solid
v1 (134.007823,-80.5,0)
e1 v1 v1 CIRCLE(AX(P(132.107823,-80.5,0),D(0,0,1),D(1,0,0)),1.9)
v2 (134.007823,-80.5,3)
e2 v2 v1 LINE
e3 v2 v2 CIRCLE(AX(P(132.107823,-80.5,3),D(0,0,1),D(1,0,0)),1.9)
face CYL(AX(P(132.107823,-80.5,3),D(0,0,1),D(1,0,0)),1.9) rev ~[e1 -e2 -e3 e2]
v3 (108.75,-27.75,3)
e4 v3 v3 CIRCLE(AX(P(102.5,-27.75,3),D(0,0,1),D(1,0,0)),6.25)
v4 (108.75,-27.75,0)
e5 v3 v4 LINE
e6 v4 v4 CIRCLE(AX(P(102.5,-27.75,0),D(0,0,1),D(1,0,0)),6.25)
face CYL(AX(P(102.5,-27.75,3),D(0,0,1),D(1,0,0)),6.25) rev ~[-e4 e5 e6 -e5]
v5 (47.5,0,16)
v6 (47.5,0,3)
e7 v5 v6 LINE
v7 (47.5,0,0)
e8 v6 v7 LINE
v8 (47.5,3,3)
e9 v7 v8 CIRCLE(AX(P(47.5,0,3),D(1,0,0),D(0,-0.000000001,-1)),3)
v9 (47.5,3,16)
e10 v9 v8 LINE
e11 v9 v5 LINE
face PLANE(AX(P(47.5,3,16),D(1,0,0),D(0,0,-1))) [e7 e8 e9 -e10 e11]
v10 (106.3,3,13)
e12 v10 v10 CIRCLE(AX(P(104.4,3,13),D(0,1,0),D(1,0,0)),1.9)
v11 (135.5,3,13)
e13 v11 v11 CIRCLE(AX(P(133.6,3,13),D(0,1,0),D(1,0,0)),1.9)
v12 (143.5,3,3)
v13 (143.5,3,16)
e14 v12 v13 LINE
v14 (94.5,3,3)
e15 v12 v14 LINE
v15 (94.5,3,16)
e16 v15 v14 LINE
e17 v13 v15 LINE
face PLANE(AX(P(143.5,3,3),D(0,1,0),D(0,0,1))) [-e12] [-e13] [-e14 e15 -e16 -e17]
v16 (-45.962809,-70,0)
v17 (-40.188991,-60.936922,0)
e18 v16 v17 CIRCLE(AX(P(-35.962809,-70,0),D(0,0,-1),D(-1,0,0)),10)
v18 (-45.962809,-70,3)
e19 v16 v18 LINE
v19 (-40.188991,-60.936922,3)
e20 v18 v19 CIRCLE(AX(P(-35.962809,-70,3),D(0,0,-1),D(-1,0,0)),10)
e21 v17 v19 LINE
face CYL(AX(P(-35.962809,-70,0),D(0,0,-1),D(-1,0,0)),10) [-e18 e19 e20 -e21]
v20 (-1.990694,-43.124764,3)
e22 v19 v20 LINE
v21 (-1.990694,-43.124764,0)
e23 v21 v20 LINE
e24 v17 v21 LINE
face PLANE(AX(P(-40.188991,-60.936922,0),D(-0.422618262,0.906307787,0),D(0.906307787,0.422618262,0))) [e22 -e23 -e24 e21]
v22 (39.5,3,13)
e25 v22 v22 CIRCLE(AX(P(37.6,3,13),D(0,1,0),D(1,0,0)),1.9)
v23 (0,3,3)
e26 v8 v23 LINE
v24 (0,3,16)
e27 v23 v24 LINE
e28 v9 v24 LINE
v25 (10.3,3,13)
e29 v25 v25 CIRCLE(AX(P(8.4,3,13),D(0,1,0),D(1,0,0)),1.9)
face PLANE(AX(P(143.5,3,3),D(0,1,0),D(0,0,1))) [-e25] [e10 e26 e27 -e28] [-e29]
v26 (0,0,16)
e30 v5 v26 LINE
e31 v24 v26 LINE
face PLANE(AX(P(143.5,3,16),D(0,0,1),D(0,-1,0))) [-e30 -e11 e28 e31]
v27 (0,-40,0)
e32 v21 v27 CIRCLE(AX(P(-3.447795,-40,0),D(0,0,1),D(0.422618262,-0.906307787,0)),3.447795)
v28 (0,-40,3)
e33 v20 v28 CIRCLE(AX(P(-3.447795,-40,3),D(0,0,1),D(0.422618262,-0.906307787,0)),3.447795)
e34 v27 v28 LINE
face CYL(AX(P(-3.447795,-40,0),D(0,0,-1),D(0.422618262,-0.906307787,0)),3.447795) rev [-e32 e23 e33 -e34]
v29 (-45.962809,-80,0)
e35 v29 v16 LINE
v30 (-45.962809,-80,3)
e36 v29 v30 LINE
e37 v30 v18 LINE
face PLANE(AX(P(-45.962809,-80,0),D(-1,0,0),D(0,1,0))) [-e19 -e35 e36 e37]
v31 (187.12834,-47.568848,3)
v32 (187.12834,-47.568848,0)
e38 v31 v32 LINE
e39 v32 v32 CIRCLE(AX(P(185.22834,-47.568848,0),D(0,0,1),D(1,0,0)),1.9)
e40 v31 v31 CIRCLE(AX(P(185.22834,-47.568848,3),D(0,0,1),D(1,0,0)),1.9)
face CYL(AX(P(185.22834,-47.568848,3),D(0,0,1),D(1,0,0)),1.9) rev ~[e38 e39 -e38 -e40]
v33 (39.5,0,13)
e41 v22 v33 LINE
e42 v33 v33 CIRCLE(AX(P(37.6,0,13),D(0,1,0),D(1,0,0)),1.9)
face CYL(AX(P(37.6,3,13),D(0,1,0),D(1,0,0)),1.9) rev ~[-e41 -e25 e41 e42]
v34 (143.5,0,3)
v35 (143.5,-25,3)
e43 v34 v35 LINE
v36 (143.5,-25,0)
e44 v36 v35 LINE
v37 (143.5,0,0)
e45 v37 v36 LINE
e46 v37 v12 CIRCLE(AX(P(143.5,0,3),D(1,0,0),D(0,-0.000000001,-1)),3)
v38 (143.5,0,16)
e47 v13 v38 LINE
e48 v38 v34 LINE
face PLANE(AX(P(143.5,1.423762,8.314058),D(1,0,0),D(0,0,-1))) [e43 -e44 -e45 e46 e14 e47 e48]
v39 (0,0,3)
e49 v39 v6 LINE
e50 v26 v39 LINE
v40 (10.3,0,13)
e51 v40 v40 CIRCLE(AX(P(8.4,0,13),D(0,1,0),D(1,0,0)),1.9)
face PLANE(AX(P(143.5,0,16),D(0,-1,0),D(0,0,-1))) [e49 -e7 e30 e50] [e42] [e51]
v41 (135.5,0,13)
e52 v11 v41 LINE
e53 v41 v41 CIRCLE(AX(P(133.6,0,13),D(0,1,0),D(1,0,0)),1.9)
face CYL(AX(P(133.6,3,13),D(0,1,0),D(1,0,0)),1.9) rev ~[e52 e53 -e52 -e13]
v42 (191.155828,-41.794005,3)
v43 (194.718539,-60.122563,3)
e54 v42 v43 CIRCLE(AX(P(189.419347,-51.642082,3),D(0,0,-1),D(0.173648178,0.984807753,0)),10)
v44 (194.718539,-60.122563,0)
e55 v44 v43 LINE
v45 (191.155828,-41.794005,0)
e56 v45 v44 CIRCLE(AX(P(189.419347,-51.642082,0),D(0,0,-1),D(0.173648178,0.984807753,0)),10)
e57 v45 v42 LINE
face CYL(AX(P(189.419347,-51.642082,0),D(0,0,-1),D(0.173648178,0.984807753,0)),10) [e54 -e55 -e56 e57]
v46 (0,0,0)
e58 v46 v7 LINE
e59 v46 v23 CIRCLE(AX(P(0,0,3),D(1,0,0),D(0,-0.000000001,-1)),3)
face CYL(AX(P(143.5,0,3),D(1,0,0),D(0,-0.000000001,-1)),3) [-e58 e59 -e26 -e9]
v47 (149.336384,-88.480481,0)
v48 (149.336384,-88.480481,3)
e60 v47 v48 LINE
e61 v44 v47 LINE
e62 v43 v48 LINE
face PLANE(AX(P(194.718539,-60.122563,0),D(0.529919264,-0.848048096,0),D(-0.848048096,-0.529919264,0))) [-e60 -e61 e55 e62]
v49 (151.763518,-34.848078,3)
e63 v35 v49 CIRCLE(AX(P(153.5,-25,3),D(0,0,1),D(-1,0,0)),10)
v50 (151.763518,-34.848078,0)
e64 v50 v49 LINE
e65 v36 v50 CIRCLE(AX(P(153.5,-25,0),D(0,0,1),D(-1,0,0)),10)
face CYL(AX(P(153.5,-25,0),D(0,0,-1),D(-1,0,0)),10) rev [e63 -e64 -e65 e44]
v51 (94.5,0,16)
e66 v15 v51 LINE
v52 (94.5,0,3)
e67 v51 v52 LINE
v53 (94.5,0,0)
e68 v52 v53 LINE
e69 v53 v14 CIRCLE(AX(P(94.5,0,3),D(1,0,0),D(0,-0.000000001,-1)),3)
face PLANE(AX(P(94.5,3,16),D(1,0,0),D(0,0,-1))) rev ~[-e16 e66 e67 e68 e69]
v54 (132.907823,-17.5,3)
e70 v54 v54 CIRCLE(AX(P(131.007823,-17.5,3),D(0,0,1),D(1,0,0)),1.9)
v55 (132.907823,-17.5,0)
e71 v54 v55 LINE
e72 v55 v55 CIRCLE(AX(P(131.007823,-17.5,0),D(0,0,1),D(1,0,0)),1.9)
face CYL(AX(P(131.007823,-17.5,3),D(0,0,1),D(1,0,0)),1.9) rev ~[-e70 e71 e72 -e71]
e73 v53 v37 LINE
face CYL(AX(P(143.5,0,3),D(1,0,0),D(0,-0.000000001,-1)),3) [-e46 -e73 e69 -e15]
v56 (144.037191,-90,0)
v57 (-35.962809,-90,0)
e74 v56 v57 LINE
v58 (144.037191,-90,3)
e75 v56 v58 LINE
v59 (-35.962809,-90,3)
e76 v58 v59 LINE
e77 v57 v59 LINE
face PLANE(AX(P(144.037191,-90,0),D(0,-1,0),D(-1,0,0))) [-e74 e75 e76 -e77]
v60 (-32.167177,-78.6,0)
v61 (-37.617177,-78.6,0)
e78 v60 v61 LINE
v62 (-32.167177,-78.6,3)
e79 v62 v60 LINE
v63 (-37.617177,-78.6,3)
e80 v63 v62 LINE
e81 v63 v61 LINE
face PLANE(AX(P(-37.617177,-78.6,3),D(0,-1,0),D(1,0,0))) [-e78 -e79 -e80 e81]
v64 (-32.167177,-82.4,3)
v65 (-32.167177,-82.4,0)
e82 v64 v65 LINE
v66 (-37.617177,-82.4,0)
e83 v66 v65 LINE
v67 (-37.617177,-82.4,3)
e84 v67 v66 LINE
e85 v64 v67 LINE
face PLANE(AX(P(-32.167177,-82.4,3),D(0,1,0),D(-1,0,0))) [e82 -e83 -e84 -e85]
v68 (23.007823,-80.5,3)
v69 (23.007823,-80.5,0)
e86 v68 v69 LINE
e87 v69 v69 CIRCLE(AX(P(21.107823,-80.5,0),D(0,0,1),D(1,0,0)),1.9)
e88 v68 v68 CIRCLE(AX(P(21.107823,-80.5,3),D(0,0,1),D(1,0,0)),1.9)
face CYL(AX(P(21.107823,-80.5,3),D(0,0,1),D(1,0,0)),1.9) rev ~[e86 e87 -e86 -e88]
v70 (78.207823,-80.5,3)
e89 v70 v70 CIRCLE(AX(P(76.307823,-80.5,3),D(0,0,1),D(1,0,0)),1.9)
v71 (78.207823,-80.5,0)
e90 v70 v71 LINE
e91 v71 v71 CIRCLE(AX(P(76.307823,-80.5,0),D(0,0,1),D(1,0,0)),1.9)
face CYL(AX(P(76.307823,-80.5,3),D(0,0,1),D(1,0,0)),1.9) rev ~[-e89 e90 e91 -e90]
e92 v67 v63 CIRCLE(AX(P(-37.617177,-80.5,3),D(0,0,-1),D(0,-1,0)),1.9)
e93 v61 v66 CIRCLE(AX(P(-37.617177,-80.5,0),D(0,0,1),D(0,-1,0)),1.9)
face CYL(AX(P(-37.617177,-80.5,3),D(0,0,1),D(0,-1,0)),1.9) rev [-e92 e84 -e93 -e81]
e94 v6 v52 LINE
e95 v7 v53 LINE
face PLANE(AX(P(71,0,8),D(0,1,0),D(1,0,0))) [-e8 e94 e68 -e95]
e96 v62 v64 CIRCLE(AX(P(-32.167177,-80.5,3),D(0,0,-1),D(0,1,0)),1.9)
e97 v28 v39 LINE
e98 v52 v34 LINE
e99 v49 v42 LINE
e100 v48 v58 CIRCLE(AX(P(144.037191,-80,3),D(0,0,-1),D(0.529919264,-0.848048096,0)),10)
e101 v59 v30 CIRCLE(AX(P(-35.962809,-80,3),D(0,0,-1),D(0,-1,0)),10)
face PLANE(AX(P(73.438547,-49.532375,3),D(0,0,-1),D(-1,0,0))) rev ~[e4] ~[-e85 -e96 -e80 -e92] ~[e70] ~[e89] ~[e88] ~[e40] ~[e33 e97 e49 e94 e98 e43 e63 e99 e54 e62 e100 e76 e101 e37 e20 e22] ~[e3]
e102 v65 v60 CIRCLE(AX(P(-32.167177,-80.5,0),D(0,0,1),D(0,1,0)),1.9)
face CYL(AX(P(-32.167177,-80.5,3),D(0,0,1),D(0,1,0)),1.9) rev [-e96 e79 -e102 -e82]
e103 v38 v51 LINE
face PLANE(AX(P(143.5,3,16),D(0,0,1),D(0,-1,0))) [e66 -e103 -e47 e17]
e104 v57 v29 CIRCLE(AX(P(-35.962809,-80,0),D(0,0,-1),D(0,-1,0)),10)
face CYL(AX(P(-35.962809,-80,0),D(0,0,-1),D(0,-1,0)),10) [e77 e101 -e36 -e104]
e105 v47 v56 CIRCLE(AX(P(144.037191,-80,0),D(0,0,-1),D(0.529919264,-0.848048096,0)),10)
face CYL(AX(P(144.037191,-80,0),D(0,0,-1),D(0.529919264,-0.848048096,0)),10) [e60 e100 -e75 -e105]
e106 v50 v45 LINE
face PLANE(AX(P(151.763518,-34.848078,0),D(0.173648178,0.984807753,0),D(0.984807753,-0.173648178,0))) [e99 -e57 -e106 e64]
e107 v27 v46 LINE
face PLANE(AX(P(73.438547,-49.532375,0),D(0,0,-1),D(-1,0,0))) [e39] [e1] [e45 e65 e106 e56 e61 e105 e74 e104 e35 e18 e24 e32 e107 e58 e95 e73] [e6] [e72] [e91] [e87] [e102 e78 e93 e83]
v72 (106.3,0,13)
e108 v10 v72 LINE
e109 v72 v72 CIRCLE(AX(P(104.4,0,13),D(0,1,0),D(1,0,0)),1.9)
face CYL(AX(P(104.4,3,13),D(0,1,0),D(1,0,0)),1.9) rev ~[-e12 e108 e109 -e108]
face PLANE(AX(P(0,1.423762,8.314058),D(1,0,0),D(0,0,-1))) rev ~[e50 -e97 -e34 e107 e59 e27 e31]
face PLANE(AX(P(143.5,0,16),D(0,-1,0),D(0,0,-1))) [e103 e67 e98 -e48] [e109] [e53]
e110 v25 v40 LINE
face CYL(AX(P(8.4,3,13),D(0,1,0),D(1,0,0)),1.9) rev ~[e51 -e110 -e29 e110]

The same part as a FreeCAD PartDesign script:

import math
import FreeCAD as App
import Part
import Sketcher
Q = App.Units.Quantity


def add_polygon(sketch, points):
    """Adds a closed chain of lines whose ends are joined by coincident constraints."""
    first, n = sketch.GeometryCount, len(points)
    for a, b in zip(points, points[1:] + points[:1]):
        sketch.addGeometry(Part.LineSegment(App.Vector(*a, 0), App.Vector(*b, 0)), False)
    for i in range(n):
        sketch.addConstraint(Sketcher.Constraint("Coincident", first + i, 2, first + (i + 1) % n, 1))

doc = App.newDocument("Part")
params = doc.addObject("Spreadsheet::Sheet", "Params")
for row, (alias, value) in enumerate([
    ("sketch1_radius", "10 mm"),
    ("sketch1_width", "180 mm"),
    ("sketch1_height", "40 mm"),
    ("sketch1_height2", "10 mm"),
    ("sketch1_height3", "25 mm"),
    ("pad1_length", "3 mm"),
    ("sketch2_diameter", "3.8 mm"),
    ("sketch2_diameter2", "12.5 mm"),
    ("sketch2_width", "5.45 mm"),
    ("sketch3_radius", "3 mm"),
    ("sketch3_height", "13 mm"),
    ("pad2_length", "143.5 mm"),
    ("sketch4_width", "47 mm"),
    ("sketch4_height", "16 mm"),
    ("pocket2_length", "3 mm"),
    ("sketch5_diameter", "3.8 mm"),
], start=1):
    params.set(f"A{row}", alias)
    params.set(f"B{row}", "=" + value)
    params.setAlias(f"B{row}", alias)

body = doc.addObject("PartDesign::Body", "Body")

# Sketch on XY plane
sketch1 = body.newObject("Sketcher::SketchObject", "Sketch")
sketch1.AttachmentSupport = (doc.getObject("XY_Plane"), [""])
sketch1.MapMode = "FlatFace"
sketch1.addGeometry([
    Part.LineSegment(App.Vector(143.5, 0, 0), App.Vector(0, 0, 0)),  # 0
    Part.LineSegment(App.Vector(0, 0, 0), App.Vector(0, -40, 0)),  # 1
    Part.ArcOfCircle(Part.Circle(App.Vector(-3.447795, -40, 0), App.Vector(0, 0, 1), 3.447795), math.radians(-65), math.radians(0)),  # 2
    Part.LineSegment(App.Vector(-1.990694, -43.124764, 0), App.Vector(-40.188991, -60.936922, 0)),  # 3
    Part.ArcOfCircle(Part.Circle(App.Vector(-35.962809, -70, 0), App.Vector(0, 0, 1), 10), math.radians(115), math.radians(180)),  # 4
    Part.LineSegment(App.Vector(-45.962809, -70, 0), App.Vector(-45.962809, -80, 0)),  # 5
    Part.ArcOfCircle(Part.Circle(App.Vector(-35.962809, -80, 0), App.Vector(0, 0, 1), 10), math.radians(180), math.radians(270)),  # 6
    Part.LineSegment(App.Vector(-35.962809, -90, 0), App.Vector(144.037191, -90, 0)),  # 7
    Part.ArcOfCircle(Part.Circle(App.Vector(144.037191, -80, 0), App.Vector(0, 0, 1), 10), math.radians(-90), math.radians(-58)),  # 8
    Part.LineSegment(App.Vector(149.336384, -88.480481, 0), App.Vector(194.718539, -60.122563, 0)),  # 9
    Part.ArcOfCircle(Part.Circle(App.Vector(189.419347, -51.642082, 0), App.Vector(0, 0, 1), 10), math.radians(-58), math.radians(80)),  # 10
    Part.LineSegment(App.Vector(191.155828, -41.794005, 0), App.Vector(151.763518, -34.848078, 0)),  # 11
    Part.ArcOfCircle(Part.Circle(App.Vector(153.5, -25, 0), App.Vector(0, 0, 1), 10), math.radians(180), math.radians(260)),  # 12
    Part.LineSegment(App.Vector(143.5, -25, 0), App.Vector(143.5, 0, 0)),  # 13
], False)
sketch1.addConstraint([
    Sketcher.Constraint("Coincident", 0, 2, 1, 1),
    Sketcher.Constraint("Tangent", 1, 2, 2, 2),
    Sketcher.Constraint("Tangent", 2, 1, 3, 1),
    Sketcher.Constraint("Tangent", 3, 2, 4, 1),
    Sketcher.Constraint("Tangent", 4, 2, 5, 1),
    Sketcher.Constraint("Tangent", 5, 2, 6, 1),
    Sketcher.Constraint("Tangent", 6, 2, 7, 1),
    Sketcher.Constraint("Tangent", 7, 2, 8, 1),
    Sketcher.Constraint("Tangent", 8, 2, 9, 1),
    Sketcher.Constraint("Tangent", 9, 2, 10, 1),
    Sketcher.Constraint("Tangent", 10, 2, 11, 1),
    Sketcher.Constraint("Tangent", 11, 2, 12, 2),
    Sketcher.Constraint("Tangent", 12, 1, 13, 1),
    Sketcher.Constraint("Coincident", 13, 2, 0, 1),
    Sketcher.Constraint("Horizontal", 0),
    Sketcher.Constraint("Vertical", 1),
    Sketcher.Constraint("Vertical", 5),
    Sketcher.Constraint("Horizontal", 7),
    Sketcher.Constraint("Vertical", 13),
    Sketcher.Constraint("Coincident", 0, 2, -1, 1),
    Sketcher.Constraint("Equal", 4, 6),
    Sketcher.Constraint("Equal", 6, 8),
    Sketcher.Constraint("Equal", 8, 10),
    Sketcher.Constraint("Equal", 10, 12),
    Sketcher.Constraint("Radius", 4, 10.0),
    Sketcher.Constraint("DistanceX", 7, 1, 7, 2, 180.0),
    Sketcher.Constraint("DistanceY", 1, 2, 1, 1, 40.0),
    Sketcher.Constraint("DistanceY", 5, 2, 5, 1, 10.0),
    Sketcher.Constraint("DistanceY", 13, 1, 13, 2, 25.0),
    Sketcher.Constraint("Angle", 3, Q("-155 deg")),
    Sketcher.Constraint("Angle", 9, Q("32 deg")),
    Sketcher.Constraint("Angle", 11, Q("170 deg")),
    Sketcher.Constraint("Distance", 11, 40.0),
    Sketcher.Constraint("DistanceX", 0, 2, 0, 1, 143.5),
    Sketcher.Constraint("DistanceY", 4, 3, -1, 1, 70.0),
])
sketch1.setExpression("Constraints[24]", "Params.sketch1_radius")
sketch1.setExpression("Constraints[25]", "Params.sketch1_width")
sketch1.setExpression("Constraints[26]", "Params.sketch1_height")
sketch1.setExpression("Constraints[27]", "Params.sketch1_height2")
sketch1.setExpression("Constraints[28]", "Params.sketch1_height3")
pad1 = body.newObject("PartDesign::Pad", "Pad")
pad1.Profile = sketch1
pad1.setExpression("Length", "Params.pad1_length")

# Sketch on XY plane
sketch2 = body.newObject("Sketcher::SketchObject", "Sketch001")
sketch2.AttachmentSupport = (doc.getObject("XY_Plane"), [""])
sketch2.MapMode = "FlatFace"
sketch2.AttachmentOffset = App.Placement(App.Vector(0, 0, 3), App.Rotation())
sketch2.addGeometry([
    Part.Circle(App.Vector(185.22834, -47.568848, 0), App.Vector(0, 0, 1), 1.9),  # 0
    Part.Circle(App.Vector(132.107823, -80.5, 0), App.Vector(0, 0, 1), 1.9),  # 1
    Part.Circle(App.Vector(76.307823, -80.5, 0), App.Vector(0, 0, 1), 1.9),  # 2
    Part.Circle(App.Vector(21.107823, -80.5, 0), App.Vector(0, 0, 1), 1.9),  # 3
    Part.Circle(App.Vector(102.5, -27.75, 0), App.Vector(0, 0, 1), 6.25),  # 4
    Part.Circle(App.Vector(131.007823, -17.5, 0), App.Vector(0, 0, 1), 1.9),  # 5
    Part.LineSegment(App.Vector(-37.617177, -82.4, 0), App.Vector(-32.167177, -82.4, 0)),  # 6
    Part.ArcOfCircle(Part.Circle(App.Vector(-32.167177, -80.5, 0), App.Vector(0, 0, 1), 1.9), math.radians(-90), math.radians(90)),  # 7
    Part.LineSegment(App.Vector(-32.167177, -78.6, 0), App.Vector(-37.617177, -78.6, 0)),  # 8
    Part.ArcOfCircle(Part.Circle(App.Vector(-37.617177, -80.5, 0), App.Vector(0, 0, 1), 1.9), math.radians(90), math.radians(270)),  # 9
], False)
sketch2.addConstraint([
    Sketcher.Constraint("Tangent", 6, 2, 7, 1),
    Sketcher.Constraint("Tangent", 7, 2, 8, 1),
    Sketcher.Constraint("Tangent", 8, 2, 9, 1),
    Sketcher.Constraint("Tangent", 9, 2, 6, 1),
    Sketcher.Constraint("Horizontal", 6),
    Sketcher.Constraint("Horizontal", 8),
    Sketcher.Constraint("Equal", 0, 1),
    Sketcher.Constraint("Equal", 1, 2),
    Sketcher.Constraint("Equal", 2, 3),
    Sketcher.Constraint("Equal", 3, 5),
    Sketcher.Constraint("Equal", 5, 7),
    Sketcher.Constraint("Horizontal", 1, 3, 2, 3),
    Sketcher.Constraint("Horizontal", 2, 3, 3, 3),
    Sketcher.Constraint("Horizontal", 3, 3, 7, 3),
    Sketcher.Constraint("Diameter", 0, 3.8),
    Sketcher.Constraint("Diameter", 4, 12.5),
    Sketcher.Constraint("DistanceX", 3, 3, 1, 3, 111.0),
    Sketcher.Constraint("DistanceY", 1, 3, 5, 3, 63.0),
    Sketcher.Constraint("DistanceX", 6, 1, 6, 2, 5.45),
    Sketcher.Constraint("DistanceY", 1, 3, -1, 1, 80.5),
    Sketcher.Constraint("DistanceX", -1, 1, 4, 3, 102.5),
    Sketcher.Constraint("DistanceX", 2, 3, 1, 3, 55.8),
    Sketcher.Constraint("DistanceX", 5, 3, 1, 3, 1.1),
    Sketcher.Constraint("DistanceY", 4, 3, -1, 1, 27.75),
    Sketcher.Constraint("DistanceX", 7, 3, 3, 3, 53.275),
    Sketcher.Constraint("DistanceX", -1, 1, 0, 3, 185.22834),
    Sketcher.Constraint("DistanceY", 0, 3, -1, 1, 47.568848),
    Sketcher.Constraint("DistanceX", -1, 1, 1, 3, 132.107823),
])
sketch2.setExpression("Constraints[14]", "Params.sketch2_diameter")
sketch2.setExpression("Constraints[15]", "Params.sketch2_diameter2")
sketch2.setExpression("Constraints[18]", "Params.sketch2_width")
pocket1 = body.newObject("PartDesign::Pocket", "Pocket")
pocket1.Profile = sketch2
pocket1.Type = "ThroughAll"

# Sketch on YZ plane
sketch3 = body.newObject("Sketcher::SketchObject", "Sketch002")
sketch3.AttachmentSupport = (doc.getObject("YZ_Plane"), [""])
sketch3.MapMode = "FlatFace"
sketch3.AttachmentOffset = App.Placement(App.Vector(0, 0, 143.5), App.Rotation())
sketch3.addGeometry([
    Part.ArcOfCircle(Part.Circle(App.Vector(0, 3, 0), App.Vector(0, 0, 1), 3), math.radians(-90), math.radians(0)),
    Part.LineSegment(App.Vector(3, 3, 0), App.Vector(3, 16, 0)),
    Part.LineSegment(App.Vector(3, 16, 0), App.Vector(0, 16, 0)),
    Part.LineSegment(App.Vector(0, 16, 0), App.Vector(0, 0, 0)),
], False)
sketch3.addConstraint([
    Sketcher.Constraint("Tangent", 0, 2, 1, 1),
    Sketcher.Constraint("Coincident", 1, 2, 2, 1),
    Sketcher.Constraint("Coincident", 2, 2, 3, 1),
    Sketcher.Constraint("Coincident", 3, 2, 0, 1),
    Sketcher.Constraint("Vertical", 1),
    Sketcher.Constraint("Horizontal", 2),
    Sketcher.Constraint("Vertical", 3),
    Sketcher.Constraint("Coincident", 3, 2, -1, 1),
    Sketcher.Constraint("PointOnObject", 0, 3, -2),
    Sketcher.Constraint("Radius", 0, 3.0),
    Sketcher.Constraint("DistanceY", 1, 1, 1, 2, 13.0),
])
sketch3.setExpression("Constraints[9]", "Params.sketch3_radius")
sketch3.setExpression("Constraints[10]", "Params.sketch3_height")
pad2 = body.newObject("PartDesign::Pad", "Pad001")
pad2.Profile = sketch3
pad2.setExpression("Length", "Params.pad2_length")
pad2.Reversed = True

# Sketch on XZ plane
sketch4 = body.newObject("Sketcher::SketchObject", "Sketch003")
sketch4.AttachmentSupport = (doc.getObject("XZ_Plane"), [""])
sketch4.MapMode = "FlatFace"
sketch4.AttachmentOffset = App.Placement(App.Vector(0, 0, -3), App.Rotation())
add_polygon(sketch4, [(47.5, 0), (47.5, 16), (94.5, 16), (94.5, 0)])  # lines 0-3
sketch4.addConstraint([
    Sketcher.Constraint("Vertical", 0),
    Sketcher.Constraint("Horizontal", 1),
    Sketcher.Constraint("Vertical", 2),
    Sketcher.Constraint("Horizontal", 3),
    Sketcher.Constraint("PointOnObject", 2, 2, -1),
    Sketcher.Constraint("DistanceX", 1, 1, 1, 2, 47.0),
    Sketcher.Constraint("DistanceY", 0, 1, 0, 2, 16.0),
    Sketcher.Constraint("DistanceX", -1, 1, 0, 2, 47.5),
])
sketch4.setExpression("Constraints[9]", "Params.sketch4_width")
sketch4.setExpression("Constraints[10]", "Params.sketch4_height")
pocket2 = body.newObject("PartDesign::Pocket", "Pocket001")
pocket2.Profile = sketch4
pocket2.setExpression("Length", "Params.pocket2_length")
pocket2.Reversed = True

# Sketch on XZ plane
sketch5 = body.newObject("Sketcher::SketchObject", "Sketch004")
sketch5.AttachmentSupport = (doc.getObject("XZ_Plane"), [""])
sketch5.MapMode = "FlatFace"
sketch5.AttachmentOffset = App.Placement(App.Vector(0, 0, -3), App.Rotation())
sketch5.addGeometry([
    Part.Circle(App.Vector(133.6, 13, 0), App.Vector(0, 0, 1), 1.9),
    Part.Circle(App.Vector(104.4, 13, 0), App.Vector(0, 0, 1), 1.9),
    Part.Circle(App.Vector(37.6, 13, 0), App.Vector(0, 0, 1), 1.9),
    Part.Circle(App.Vector(8.4, 13, 0), App.Vector(0, 0, 1), 1.9),
], False)
sketch5.addConstraint([
    Sketcher.Constraint("Equal", 0, 1),
    Sketcher.Constraint("Equal", 1, 2),
    Sketcher.Constraint("Equal", 2, 3),
    Sketcher.Constraint("Horizontal", 0, 3, 1, 3),
    Sketcher.Constraint("Horizontal", 1, 3, 2, 3),
    Sketcher.Constraint("Horizontal", 2, 3, 3, 3),
    Sketcher.Constraint("Diameter", 0, 3.8),
    Sketcher.Constraint("DistanceY", -1, 1, 0, 3, 13.0),
    Sketcher.Constraint("DistanceX", 2, 3, 0, 3, 96.0),
    Sketcher.Constraint("DistanceX", 3, 3, 1, 3, 96.0),
    Sketcher.Constraint("DistanceX", -1, 1, 0, 3, 133.6),
    Sketcher.Constraint("DistanceX", -1, 1, 1, 3, 104.4),
])
sketch5.setExpression("Constraints[6]", "Params.sketch5_diameter")
pocket3 = body.newObject("PartDesign::Pocket", "Pocket002")
pocket3.Profile = sketch5
pocket3.Type = "ThroughAll"
pocket3.Reversed = True

doc.recompute()
